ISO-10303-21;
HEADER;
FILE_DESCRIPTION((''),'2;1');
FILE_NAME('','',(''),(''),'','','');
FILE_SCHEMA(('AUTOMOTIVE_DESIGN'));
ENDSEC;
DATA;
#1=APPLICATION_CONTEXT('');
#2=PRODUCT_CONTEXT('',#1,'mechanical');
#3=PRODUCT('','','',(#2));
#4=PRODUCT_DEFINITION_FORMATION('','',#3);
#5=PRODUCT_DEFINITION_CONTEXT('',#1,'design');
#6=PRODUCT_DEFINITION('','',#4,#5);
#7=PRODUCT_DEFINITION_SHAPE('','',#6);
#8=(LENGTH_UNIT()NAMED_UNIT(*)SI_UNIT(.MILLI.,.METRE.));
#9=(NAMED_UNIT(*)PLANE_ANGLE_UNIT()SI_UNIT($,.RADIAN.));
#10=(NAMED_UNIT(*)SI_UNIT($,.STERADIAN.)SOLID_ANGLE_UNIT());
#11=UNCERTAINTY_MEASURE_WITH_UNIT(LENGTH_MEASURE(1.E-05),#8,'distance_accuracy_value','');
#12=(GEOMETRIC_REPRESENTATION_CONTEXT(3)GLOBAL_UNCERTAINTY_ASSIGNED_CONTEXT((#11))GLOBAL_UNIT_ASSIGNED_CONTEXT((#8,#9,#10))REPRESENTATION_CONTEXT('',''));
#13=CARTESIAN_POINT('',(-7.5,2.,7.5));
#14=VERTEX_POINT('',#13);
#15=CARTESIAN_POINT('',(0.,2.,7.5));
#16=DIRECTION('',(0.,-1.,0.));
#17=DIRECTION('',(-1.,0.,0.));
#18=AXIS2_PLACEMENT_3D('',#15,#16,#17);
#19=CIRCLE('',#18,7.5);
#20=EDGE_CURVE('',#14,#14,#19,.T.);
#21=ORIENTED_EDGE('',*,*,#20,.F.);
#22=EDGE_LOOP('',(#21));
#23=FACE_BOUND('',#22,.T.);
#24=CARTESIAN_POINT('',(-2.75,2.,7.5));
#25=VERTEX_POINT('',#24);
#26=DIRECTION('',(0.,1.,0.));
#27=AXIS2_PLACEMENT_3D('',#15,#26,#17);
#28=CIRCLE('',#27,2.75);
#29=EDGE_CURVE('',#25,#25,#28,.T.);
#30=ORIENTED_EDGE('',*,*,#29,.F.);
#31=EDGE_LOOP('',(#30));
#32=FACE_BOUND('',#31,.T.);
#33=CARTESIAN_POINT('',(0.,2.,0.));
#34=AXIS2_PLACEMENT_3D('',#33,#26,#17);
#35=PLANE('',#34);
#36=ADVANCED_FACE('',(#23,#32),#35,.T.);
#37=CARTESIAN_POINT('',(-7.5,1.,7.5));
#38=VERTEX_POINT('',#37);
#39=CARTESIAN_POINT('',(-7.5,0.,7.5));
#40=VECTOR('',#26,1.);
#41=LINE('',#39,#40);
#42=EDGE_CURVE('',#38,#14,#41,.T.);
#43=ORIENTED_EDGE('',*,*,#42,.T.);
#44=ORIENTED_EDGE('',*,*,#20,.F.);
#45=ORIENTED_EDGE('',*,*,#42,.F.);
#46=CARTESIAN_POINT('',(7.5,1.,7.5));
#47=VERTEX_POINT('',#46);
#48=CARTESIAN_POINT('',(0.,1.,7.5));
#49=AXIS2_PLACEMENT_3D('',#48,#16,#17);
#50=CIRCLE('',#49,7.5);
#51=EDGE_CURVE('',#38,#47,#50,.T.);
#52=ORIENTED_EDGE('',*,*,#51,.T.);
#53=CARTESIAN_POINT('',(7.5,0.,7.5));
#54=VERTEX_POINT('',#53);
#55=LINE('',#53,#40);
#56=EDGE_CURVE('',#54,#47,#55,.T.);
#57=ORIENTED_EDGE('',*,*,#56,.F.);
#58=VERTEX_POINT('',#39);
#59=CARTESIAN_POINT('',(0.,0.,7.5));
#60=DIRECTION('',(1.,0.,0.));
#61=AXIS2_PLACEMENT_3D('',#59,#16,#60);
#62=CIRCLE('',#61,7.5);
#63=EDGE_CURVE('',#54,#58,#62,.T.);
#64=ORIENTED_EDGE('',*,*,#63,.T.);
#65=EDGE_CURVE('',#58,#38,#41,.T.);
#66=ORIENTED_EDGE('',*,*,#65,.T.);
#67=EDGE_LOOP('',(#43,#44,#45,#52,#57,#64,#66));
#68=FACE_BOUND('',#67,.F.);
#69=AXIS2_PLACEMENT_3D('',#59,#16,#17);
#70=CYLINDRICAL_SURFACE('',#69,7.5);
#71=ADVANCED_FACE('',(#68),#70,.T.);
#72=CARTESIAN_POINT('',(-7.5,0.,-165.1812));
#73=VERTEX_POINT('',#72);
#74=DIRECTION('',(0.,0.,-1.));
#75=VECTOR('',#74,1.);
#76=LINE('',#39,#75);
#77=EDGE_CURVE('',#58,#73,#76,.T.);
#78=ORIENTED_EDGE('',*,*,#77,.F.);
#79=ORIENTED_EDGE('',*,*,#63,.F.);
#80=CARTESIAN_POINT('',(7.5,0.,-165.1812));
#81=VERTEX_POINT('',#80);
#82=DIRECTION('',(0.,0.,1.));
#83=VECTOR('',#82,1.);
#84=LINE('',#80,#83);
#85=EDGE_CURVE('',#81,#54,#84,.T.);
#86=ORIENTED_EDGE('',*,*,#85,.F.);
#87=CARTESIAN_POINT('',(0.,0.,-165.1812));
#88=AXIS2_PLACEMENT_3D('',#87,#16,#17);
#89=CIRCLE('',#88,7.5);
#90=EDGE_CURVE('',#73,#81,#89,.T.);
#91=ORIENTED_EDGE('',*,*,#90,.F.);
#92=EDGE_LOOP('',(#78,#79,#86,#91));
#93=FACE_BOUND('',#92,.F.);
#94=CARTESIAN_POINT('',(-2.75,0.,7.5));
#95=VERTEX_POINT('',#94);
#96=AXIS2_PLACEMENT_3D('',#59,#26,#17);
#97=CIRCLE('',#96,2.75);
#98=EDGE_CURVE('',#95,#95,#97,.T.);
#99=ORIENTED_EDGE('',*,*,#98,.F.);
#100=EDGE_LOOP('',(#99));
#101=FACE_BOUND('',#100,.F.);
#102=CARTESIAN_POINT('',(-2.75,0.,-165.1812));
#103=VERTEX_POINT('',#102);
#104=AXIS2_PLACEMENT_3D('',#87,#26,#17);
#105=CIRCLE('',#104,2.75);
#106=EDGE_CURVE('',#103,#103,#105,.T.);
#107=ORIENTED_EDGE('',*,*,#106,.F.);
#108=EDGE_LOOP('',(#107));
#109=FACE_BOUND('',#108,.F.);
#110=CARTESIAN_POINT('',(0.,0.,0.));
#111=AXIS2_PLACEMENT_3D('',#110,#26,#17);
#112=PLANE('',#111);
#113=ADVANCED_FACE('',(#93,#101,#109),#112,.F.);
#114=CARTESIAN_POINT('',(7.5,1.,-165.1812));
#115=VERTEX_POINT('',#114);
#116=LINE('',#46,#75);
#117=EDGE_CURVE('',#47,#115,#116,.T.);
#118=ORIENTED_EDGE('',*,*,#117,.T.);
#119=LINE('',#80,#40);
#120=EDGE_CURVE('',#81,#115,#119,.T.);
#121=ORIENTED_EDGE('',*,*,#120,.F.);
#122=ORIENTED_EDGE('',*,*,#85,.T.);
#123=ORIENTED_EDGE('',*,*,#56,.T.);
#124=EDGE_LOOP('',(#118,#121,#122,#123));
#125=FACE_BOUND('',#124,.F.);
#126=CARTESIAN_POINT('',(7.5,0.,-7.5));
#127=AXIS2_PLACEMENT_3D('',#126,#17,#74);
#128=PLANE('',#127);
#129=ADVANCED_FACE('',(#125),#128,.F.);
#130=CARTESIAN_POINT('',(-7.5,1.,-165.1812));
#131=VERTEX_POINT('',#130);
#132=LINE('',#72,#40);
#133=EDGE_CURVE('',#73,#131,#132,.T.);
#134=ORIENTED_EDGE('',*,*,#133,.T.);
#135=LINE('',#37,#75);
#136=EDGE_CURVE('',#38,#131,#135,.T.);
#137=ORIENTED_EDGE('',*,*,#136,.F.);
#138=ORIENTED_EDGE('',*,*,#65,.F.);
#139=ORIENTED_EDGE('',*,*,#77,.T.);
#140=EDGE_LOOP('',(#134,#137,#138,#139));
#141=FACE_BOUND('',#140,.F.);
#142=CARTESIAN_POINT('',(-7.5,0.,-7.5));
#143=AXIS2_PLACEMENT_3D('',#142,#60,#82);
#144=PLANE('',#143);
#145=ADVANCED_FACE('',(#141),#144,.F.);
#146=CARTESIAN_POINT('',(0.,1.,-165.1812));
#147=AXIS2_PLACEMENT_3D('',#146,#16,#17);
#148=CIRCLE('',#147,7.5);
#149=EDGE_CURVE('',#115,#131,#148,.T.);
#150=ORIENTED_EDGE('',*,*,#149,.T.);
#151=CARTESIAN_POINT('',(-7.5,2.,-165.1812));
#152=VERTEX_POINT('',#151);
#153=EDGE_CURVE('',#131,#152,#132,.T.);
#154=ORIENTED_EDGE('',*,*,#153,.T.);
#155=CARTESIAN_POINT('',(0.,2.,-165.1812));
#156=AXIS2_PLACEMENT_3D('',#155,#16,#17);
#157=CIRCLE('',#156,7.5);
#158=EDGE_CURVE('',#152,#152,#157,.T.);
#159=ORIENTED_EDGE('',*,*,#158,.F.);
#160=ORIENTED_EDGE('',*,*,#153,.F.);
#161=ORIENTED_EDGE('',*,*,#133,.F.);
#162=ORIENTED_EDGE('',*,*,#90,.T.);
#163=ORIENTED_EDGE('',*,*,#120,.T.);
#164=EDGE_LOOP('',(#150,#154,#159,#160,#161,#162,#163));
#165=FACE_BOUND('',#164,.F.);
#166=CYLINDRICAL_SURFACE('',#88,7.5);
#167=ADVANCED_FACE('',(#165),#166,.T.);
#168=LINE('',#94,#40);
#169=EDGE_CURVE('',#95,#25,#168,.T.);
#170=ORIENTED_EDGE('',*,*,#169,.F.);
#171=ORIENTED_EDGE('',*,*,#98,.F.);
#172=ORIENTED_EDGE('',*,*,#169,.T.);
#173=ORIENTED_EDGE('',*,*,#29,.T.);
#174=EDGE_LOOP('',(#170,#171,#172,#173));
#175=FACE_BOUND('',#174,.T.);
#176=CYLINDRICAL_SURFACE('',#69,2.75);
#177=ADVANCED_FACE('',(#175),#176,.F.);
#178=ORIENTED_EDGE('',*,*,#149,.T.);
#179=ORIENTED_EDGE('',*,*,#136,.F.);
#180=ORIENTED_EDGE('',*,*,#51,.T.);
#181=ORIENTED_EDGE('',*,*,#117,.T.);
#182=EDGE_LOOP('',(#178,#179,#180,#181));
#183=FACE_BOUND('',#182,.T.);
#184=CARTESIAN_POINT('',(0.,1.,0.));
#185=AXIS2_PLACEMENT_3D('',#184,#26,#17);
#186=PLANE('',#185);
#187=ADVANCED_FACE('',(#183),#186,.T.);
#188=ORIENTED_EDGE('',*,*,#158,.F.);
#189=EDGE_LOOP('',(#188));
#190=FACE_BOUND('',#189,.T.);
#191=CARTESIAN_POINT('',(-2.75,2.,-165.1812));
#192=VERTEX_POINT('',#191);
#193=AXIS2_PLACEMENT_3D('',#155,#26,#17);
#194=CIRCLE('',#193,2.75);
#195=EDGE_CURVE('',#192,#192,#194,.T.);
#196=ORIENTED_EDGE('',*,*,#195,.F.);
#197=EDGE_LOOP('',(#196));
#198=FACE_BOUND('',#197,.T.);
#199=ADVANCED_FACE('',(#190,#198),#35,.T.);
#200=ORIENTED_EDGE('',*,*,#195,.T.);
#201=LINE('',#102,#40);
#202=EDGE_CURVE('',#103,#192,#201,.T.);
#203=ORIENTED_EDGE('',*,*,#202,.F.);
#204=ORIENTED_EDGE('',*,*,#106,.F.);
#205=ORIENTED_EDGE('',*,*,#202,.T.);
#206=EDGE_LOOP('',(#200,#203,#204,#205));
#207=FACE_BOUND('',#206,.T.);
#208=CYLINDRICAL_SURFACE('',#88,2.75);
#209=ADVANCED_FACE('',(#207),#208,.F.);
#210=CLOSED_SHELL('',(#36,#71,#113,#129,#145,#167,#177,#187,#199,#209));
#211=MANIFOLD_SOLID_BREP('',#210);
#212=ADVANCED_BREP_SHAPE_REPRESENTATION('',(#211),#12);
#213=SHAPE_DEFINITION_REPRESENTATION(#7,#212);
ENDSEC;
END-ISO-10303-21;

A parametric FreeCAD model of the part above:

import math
import FreeCAD as App
import Part
import Sketcher

V = App.Vector
Q = App.Units.Quantity

doc = App.newDocument("Part")
body = doc.addObject("PartDesign::Body", "Body")

sketch1 = doc.addObject("Sketcher::SketchObject", "Sketch")
body.addObject(sketch1)
sketch1.AttachmentSupport = (doc.XZ_Plane, [""])
sketch1.MapMode = "FlatFace"
sketch1.addGeometry([
    Part.ArcOfCircle(Part.Circle(V(0, 7.5, 0), V(0, 0, 1), 7.5), math.radians(0), math.radians(180)),
    Part.LineSegment(V(7.5, 7.5, 0), V(7.5, -165.1812, 0)),
    Part.ArcOfCircle(Part.Circle(V(0, -165.1812, 0), V(0, 0, 1), 7.5), math.radians(180), math.radians(360)),
    Part.LineSegment(V(-7.5, -165.1812, 0), V(-7.5, 7.5, 0)),
    Part.Circle(V(0, 7.5, 0), V(0, 0, 1), 2.75),
    Part.Circle(V(0, -165.1812, 0), V(0, 0, 1), 2.75),
], False)
sketch1.addConstraint([
    Sketcher.Constraint("Tangent", 0, 1, 1, 1),
    Sketcher.Constraint("Tangent", 1, 2, 2, 2),
    Sketcher.Constraint("Tangent", 2, 1, 3, 1),
    Sketcher.Constraint("Tangent", 3, 2, 0, 2),
    Sketcher.Constraint("Vertical", 1),
    Sketcher.Constraint("Vertical", 3),
    Sketcher.Constraint("Coincident", 4, 3, 0, 3),
    Sketcher.Constraint("Coincident", 5, 3, 2, 3),
    Sketcher.Constraint("Equal", 4, 5),
    Sketcher.Constraint("PointOnObject", 0, 3, -2),
    Sketcher.Constraint("Diameter", 4, Q("5.5 mm")),
    Sketcher.Constraint("Radius", 0, Q("7.5 mm")),
    Sketcher.Constraint("DistanceY", -1, 1, 0, 3, Q("7.5 mm")),
    Sketcher.Constraint("DistanceY", 1, 2, 1, 1, Q("172.6812 mm")),
])
pad1 = doc.addObject("PartDesign::Pad", "Pad")
body.addObject(pad1)
pad1.Profile = sketch1
pad1.Length = 1
pad1.Reversed = True

sketch2 = doc.addObject("Sketcher::SketchObject", "Sketch001")
body.addObject(sketch2)
sketch2.AttachmentSupport = (doc.XZ_Plane, [""])
sketch2.MapMode = "FlatFace"
sketch2.addGeometry([
    Part.Circle(V(0, 7.5, 0), V(0, 0, 1), 7.5),
    Part.Circle(V(0, 7.5, 0), V(0, 0, 1), 2.75),
    Part.Circle(V(0, -165.1812, 0), V(0, 0, 1), 7.5),
    Part.Circle(V(0, -165.1812, 0), V(0, 0, 1), 2.75),
], False)
sketch2.addConstraint([
    Sketcher.Constraint("Coincident", 1, 3, 0, 3),
    Sketcher.Constraint("Coincident", 3, 3, 2, 3),
    Sketcher.Constraint("Equal", 0, 2),
    Sketcher.Constraint("Equal", 1, 3),
    Sketcher.Constraint("PointOnObject", 0, 3, -2),
    Sketcher.Constraint("PointOnObject", 2, 3, -2),
    Sketcher.Constraint("Diameter", 0, Q("15 mm")),
    Sketcher.Constraint("Diameter", 1, Q("5.5 mm")),
    Sketcher.Constraint("DistanceY", -1, 1, 0, 3, Q("7.5 mm")),
    Sketcher.Constraint("DistanceY", 2, 3, -1, 1, Q("165.1812 mm")),
])
pad2 = doc.addObject("PartDesign::Pad", "Pad001")
body.addObject(pad2)
pad2.Profile = sketch2
pad2.Length = 2
pad2.Reversed = True

doc.recompute()
